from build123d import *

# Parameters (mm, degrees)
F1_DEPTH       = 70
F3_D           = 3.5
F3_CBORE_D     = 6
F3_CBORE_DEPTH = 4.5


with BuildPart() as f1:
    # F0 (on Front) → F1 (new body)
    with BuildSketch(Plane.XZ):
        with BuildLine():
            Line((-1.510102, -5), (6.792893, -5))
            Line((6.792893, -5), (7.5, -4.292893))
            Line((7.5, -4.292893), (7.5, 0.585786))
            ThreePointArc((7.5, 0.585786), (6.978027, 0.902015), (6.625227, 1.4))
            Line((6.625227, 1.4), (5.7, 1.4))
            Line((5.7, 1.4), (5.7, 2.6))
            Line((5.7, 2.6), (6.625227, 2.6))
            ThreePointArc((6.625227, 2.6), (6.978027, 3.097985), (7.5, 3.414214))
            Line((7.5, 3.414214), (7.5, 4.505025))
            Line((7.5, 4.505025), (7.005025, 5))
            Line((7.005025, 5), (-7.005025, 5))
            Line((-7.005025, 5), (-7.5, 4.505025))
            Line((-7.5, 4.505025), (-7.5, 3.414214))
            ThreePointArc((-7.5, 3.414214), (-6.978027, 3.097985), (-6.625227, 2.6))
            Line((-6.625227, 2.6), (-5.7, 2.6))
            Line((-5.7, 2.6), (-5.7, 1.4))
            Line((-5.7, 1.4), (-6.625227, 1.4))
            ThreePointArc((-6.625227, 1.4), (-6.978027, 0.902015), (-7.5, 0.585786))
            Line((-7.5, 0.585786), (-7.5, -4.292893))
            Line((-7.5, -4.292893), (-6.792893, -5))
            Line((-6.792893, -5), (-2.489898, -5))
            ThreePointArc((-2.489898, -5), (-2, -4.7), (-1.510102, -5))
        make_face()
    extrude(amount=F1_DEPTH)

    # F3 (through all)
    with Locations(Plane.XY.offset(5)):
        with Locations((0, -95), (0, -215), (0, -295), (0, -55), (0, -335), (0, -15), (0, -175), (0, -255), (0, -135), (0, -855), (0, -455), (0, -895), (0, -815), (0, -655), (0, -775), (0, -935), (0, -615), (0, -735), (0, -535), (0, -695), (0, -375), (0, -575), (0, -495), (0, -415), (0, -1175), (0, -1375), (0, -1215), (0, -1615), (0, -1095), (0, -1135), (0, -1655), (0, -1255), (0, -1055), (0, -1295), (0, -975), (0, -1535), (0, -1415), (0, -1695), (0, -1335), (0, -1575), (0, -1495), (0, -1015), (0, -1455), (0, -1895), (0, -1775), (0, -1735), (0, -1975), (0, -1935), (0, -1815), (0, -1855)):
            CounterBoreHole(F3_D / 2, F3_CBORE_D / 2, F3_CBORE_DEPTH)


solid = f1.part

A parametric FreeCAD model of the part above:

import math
import FreeCAD as App
import Part
import Sketcher

V = App.Vector

doc = App.newDocument("Part")
body = doc.addObject("PartDesign::Body", "Body")

# Sketch on XZ plane
sketch1 = body.newObject("Sketcher::SketchObject", "Sketch")
sketch1.AttachmentSupport = (doc.getObject("XZ_Plane"), [""])
sketch1.MapMode = "FlatFace"
sketch1.addGeometry(Part.LineSegment(V(-1.5, -5, 0), V(6.8, -5, 0)), False)
sketch1.addGeometry(Part.LineSegment(V(6.8, -5, 0), V(7.5, -4.3, 0)), False)
sketch1.addGeometry(Part.LineSegment(V(7.5, -4.3, 0), V(7.5, 0.6, 0)), False)
sketch1.addGeometry(Part.ArcOfCircle(Part.Circle(V(8, 2, 0), V(0, 0, 1), 1.5), math.radians(-156), math.radians(-109)), False)
sketch1.addGeometry(Part.LineSegment(V(6.6, 1.4, 0), V(5.7, 1.4, 0)), False)
sketch1.addGeometry(Part.LineSegment(V(5.7, 1.4, 0), V(5.7, 2.6, 0)), False)
sketch1.addGeometry(Part.LineSegment(V(5.7, 2.6, 0), V(6.6, 2.6, 0)), False)
sketch1.addGeometry(Part.ArcOfCircle(Part.Circle(V(8, 2, 0), V(0, 0, 1), 1.5), math.radians(109), math.radians(156)), False)
sketch1.addGeometry(Part.LineSegment(V(7.5, 3.4, 0), V(7.5, 4.5, 0)), False)
sketch1.addGeometry(Part.LineSegment(V(7.5, 4.5, 0), V(7, 5, 0)), False)
sketch1.addGeometry(Part.LineSegment(V(7, 5, 0), V(-7, 5, 0)), False)
sketch1.addGeometry(Part.LineSegment(V(-7, 5, 0), V(-7.5, 4.5, 0)), False)
sketch1.addGeometry(Part.LineSegment(V(-7.5, 4.5, 0), V(-7.5, 3.4, 0)), False)
sketch1.addGeometry(Part.ArcOfCircle(Part.Circle(V(-8, 2, 0), V(0, 0, 1), 1.5), math.radians(24), math.radians(71)), False)
sketch1.addGeometry(Part.LineSegment(V(-6.6, 2.6, 0), V(-5.7, 2.6, 0)), False)
sketch1.addGeometry(Part.LineSegment(V(-5.7, 2.6, 0), V(-5.7, 1.4, 0)), False)
sketch1.addGeometry(Part.LineSegment(V(-5.7, 1.4, 0), V(-6.6, 1.4, 0)), False)
sketch1.addGeometry(Part.ArcOfCircle(Part.Circle(V(-8, 2, 0), V(0, 0, 1), 1.5), math.radians(-71), math.radians(-24)), False)
sketch1.addGeometry(Part.LineSegment(V(-7.5, 0.6, 0), V(-7.5, -4.3, 0)), False)
sketch1.addGeometry(Part.LineSegment(V(-7.5, -4.3, 0), V(-6.8, -5, 0)), False)
sketch1.addGeometry(Part.LineSegment(V(-6.8, -5, 0), V(-2.5, -5, 0)), False)
sketch1.addGeometry(Part.ArcOfCircle(Part.Circle(V(-2, -5.3, 0), V(0, 0, 1), 0.6), math.radians(27), math.radians(153)), False)
sketch1.addConstraint(Sketcher.Constraint("Coincident", 0, 2, 1, 1))
sketch1.addConstraint(Sketcher.Constraint("Coincident", 1, 2, 2, 1))
sketch1.addConstraint(Sketcher.Constraint("Coincident", 2, 2, 3, 2))
sketch1.addConstraint(Sketcher.Constraint("Coincident", 3, 1, 4, 1))
sketch1.addConstraint(Sketcher.Constraint("Coincident", 4, 2, 5, 1))
sketch1.addConstraint(Sketcher.Constraint("Coincident", 5, 2, 6, 1))
sketch1.addConstraint(Sketcher.Constraint("Coincident", 6, 2, 7, 2))
sketch1.addConstraint(Sketcher.Constraint("Coincident", 7, 1, 8, 1))
sketch1.addConstraint(Sketcher.Constraint("Coincident", 8, 2, 9, 1))
sketch1.addConstraint(Sketcher.Constraint("Coincident", 9, 2, 10, 1))
sketch1.addConstraint(Sketcher.Constraint("Coincident", 10, 2, 11, 1))
sketch1.addConstraint(Sketcher.Constraint("Coincident", 11, 2, 12, 1))
sketch1.addConstraint(Sketcher.Constraint("Coincident", 12, 2, 13, 2))
sketch1.addConstraint(Sketcher.Constraint("Coincident", 13, 1, 14, 1))
sketch1.addConstraint(Sketcher.Constraint("Coincident", 14, 2, 15, 1))
sketch1.addConstraint(Sketcher.Constraint("Coincident", 15, 2, 16, 1))
sketch1.addConstraint(Sketcher.Constraint("Coincident", 16, 2, 17, 2))
sketch1.addConstraint(Sketcher.Constraint("Coincident", 17, 1, 18, 1))
sketch1.addConstraint(Sketcher.Constraint("Coincident", 18, 2, 19, 1))
sketch1.addConstraint(Sketcher.Constraint("Coincident", 19, 2, 20, 1))
sketch1.addConstraint(Sketcher.Constraint("Coincident", 20, 2, 21, 2))
sketch1.addConstraint(Sketcher.Constraint("Coincident", 21, 1, 0, 1))
sketch1.addConstraint(Sketcher.Constraint("Horizontal", 0))
sketch1.addConstraint(Sketcher.Constraint("Vertical", 2))
sketch1.addConstraint(Sketcher.Constraint("Horizontal", 4))
sketch1.addConstraint(Sketcher.Constraint("Vertical", 5))
sketch1.addConstraint(Sketcher.Constraint("Horizontal", 6))
sketch1.addConstraint(Sketcher.Constraint("Vertical", 8))
sketch1.addConstraint(Sketcher.Constraint("Horizontal", 10))
sketch1.addConstraint(Sketcher.Constraint("Vertical", 12))
sketch1.addConstraint(Sketcher.Constraint("Horizontal", 14))
sketch1.addConstraint(Sketcher.Constraint("Vertical", 15))
sketch1.addConstraint(Sketcher.Constraint("Horizontal", 16))
sketch1.addConstraint(Sketcher.Constraint("Vertical", 18))
sketch1.addConstraint(Sketcher.Constraint("Horizontal", 20))
sketch1.addConstraint(Sketcher.Constraint("Coincident", 7, 3, 3, 3))
sketch1.addConstraint(Sketcher.Constraint("Coincident", 17, 3, 13, 3))
sketch1.addConstraint(Sketcher.Constraint("Equal", 3, 7))
sketch1.addConstraint(Sketcher.Constraint("Equal", 7, 13))
sketch1.addConstraint(Sketcher.Constraint("Equal", 13, 17))
sketch1.addConstraint(Sketcher.Constraint("Symmetric", 3, 3, 13, 3, -2))
sketch1.addConstraint(Sketcher.Constraint("Symmetric", 8, 2, 11, 2, -2))
sketch1.addConstraint(Sketcher.Constraint("Symmetric", 5, 2, 14, 2, -2))
sketch1.addConstraint(Sketcher.Constraint("Symmetric", 1, 2, 18, 2, -2))
sketch1.addConstraint(Sketcher.Constraint("Symmetric", 0, 2, 19, 2, -2))
sketch1.addConstraint(Sketcher.Constraint("Perpendicular", 1, 9))
sketch1.addConstraint(Sketcher.Constraint("Perpendicular", 9, 11))
sketch1.addConstraint(Sketcher.Constraint("Perpendicular", 11, 19))
sketch1.addConstraint(Sketcher.Constraint("Horizontal", 4, 2, 15, 2))
sketch1.addConstraint(Sketcher.Constraint("Vertical", 3, 1, 6, 2))
sketch1.addConstraint(Sketcher.Constraint("Vertical", 2, 2, 7, 1))
sketch1.addConstraint(Sketcher.Constraint("Radius", 21, 0.55))
sketch1.addConstraint(Sketcher.Constraint("Distance", 1, 1.0))
sketch1.addConstraint(Sketcher.Constraint("DistanceY", 5, 1, 5, 2, 1.2))
sketch1.addConstraint(Sketcher.Constraint("DistanceX", 21, 3, -1, 1, 2.0))
sketch1.addConstraint(Sketcher.Constraint("DistanceY", 0, 2, -1, 1, 5.0))
sketch1.addConstraint(Sketcher.Constraint("DistanceY", -1, 1, 9, 2, 5.0))
sketch1.addConstraint(Sketcher.Constraint("Distance", 9, 0.7))
sketch1.addConstraint(Sketcher.Constraint("DistanceX", -1, 1, 1, 2, 7.5))
sketch1.addConstraint(Sketcher.Constraint("DistanceY", -1, 1, 3, 1, 1.4))
sketch1.addConstraint(Sketcher.Constraint("DistanceX", -1, 1, 4, 2, 5.7))
sketch1.addConstraint(Sketcher.Constraint("DistanceY", 21, 3, -1, 1, 5.25))
sketch1.addConstraint(Sketcher.Constraint("Radius", 3, 1.500005))
sketch1.addConstraint(Sketcher.Constraint("DistanceY", 2, 1, 2, 2, 4.878679))
pad1 = body.newObject("PartDesign::Pad", "Pad")
pad1.Profile = sketch1
pad1.Length = 70

# Sketch on XY plane
sketch2 = body.newObject("Sketcher::SketchObject", "Sketch001")
sketch2.AttachmentSupport = (doc.getObject("XY_Plane"), [""])
sketch2.MapMode = "FlatFace"
sketch2.AttachmentOffset = App.Placement(V(0, 0, 5), App.Rotation())
sketch2.addGeometry(Part.Circle(V(0, -95, 0), V(0, 0, 1), 1.8), False)
sketch2.addGeometry(Part.Circle(V(0, -215, 0), V(0, 0, 1), 1.8), False)
sketch2.addGeometry(Part.Circle(V(0, -295, 0), V(0, 0, 1), 1.8), False)
sketch2.addGeometry(Part.Circle(V(0, -55, 0), V(0, 0, 1), 1.8), False)
sketch2.addGeometry(Part.Circle(V(0, -335, 0), V(0, 0, 1), 1.8), False)
sketch2.addGeometry(Part.Circle(V(0, -15, 0), V(0, 0, 1), 1.8), False)
sketch2.addGeometry(Part.Circle(V(0, -175, 0), V(0, 0, 1), 1.8), False)
sketch2.addGeometry(Part.Circle(V(0, -255, 0), V(0, 0, 1), 1.8), False)
sketch2.addGeometry(Part.Circle(V(0, -135, 0), V(0, 0, 1), 1.8), False)
sketch2.addGeometry(Part.Circle(V(0, -855, 0), V(0, 0, 1), 1.8), False)
sketch2.addGeometry(Part.Circle(V(0, -455, 0), V(0, 0, 1), 1.8), False)
sketch2.addGeometry(Part.Circle(V(0, -895, 0), V(0, 0, 1), 1.8), False)
sketch2.addGeometry(Part.Circle(V(0, -815, 0), V(0, 0, 1), 1.8), False)
sketch2.addGeometry(Part.Circle(V(0, -655, 0), V(0, 0, 1), 1.8), False)
sketch2.addGeometry(Part.Circle(V(0, -775, 0), V(0, 0, 1), 1.8), False)
sketch2.addGeometry(Part.Circle(V(0, -935, 0), V(0, 0, 1), 1.8), False)
sketch2.addGeometry(Part.Circle(V(0, -615, 0), V(0, 0, 1), 1.8), False)
sketch2.addGeometry(Part.Circle(V(0, -735, 0), V(0, 0, 1), 1.8), False)
sketch2.addGeometry(Part.Circle(V(0, -535, 0), V(0, 0, 1), 1.8), False)
sketch2.addGeometry(Part.Circle(V(0, -695, 0), V(0, 0, 1), 1.8), False)
sketch2.addGeometry(Part.Circle(V(0, -375, 0), V(0, 0, 1), 1.8), False)
sketch2.addGeometry(Part.Circle(V(0, -575, 0), V(0, 0, 1), 1.8), False)
sketch2.addGeometry(Part.Circle(V(0, -495, 0), V(0, 0, 1), 1.8), False)
sketch2.addGeometry(Part.Circle(V(0, -415, 0), V(0, 0, 1), 1.8), False)
sketch2.addGeometry(Part.Circle(V(0, -1175, 0), V(0, 0, 1), 1.8), False)
sketch2.addGeometry(Part.Circle(V(0, -1375, 0), V(0, 0, 1), 1.8), False)
sketch2.addGeometry(Part.Circle(V(0, -1215, 0), V(0, 0, 1), 1.8), False)
sketch2.addGeometry(Part.Circle(V(0, -1615, 0), V(0, 0, 1), 1.8), False)
sketch2.addGeometry(Part.Circle(V(0, -1095, 0), V(0, 0, 1), 1.8), False)
sketch2.addGeometry(Part.Circle(V(0, -1135, 0), V(0, 0, 1), 1.8), False)
sketch2.addGeometry(Part.Circle(V(0, -1655, 0), V(0, 0, 1), 1.8), False)
sketch2.addGeometry(Part.Circle(V(0, -1255, 0), V(0, 0, 1), 1.8), False)
sketch2.addGeometry(Part.Circle(V(0, -1055, 0), V(0, 0, 1), 1.8), False)
sketch2.addGeometry(Part.Circle(V(0, -1295, 0), V(0, 0, 1), 1.8), False)
sketch2.addGeometry(Part.Circle(V(0, -975, 0), V(0, 0, 1), 1.8), False)
sketch2.addGeometry(Part.Circle(V(0, -1535, 0), V(0, 0, 1), 1.8), False)
sketch2.addGeometry(Part.Circle(V(0, -1415, 0), V(0, 0, 1), 1.8), False)
sketch2.addGeometry(Part.Circle(V(0, -1695, 0), V(0, 0, 1), 1.8), False)
sketch2.addGeometry(Part.Circle(V(0, -1335, 0), V(0, 0, 1), 1.8), False)
sketch2.addGeometry(Part.Circle(V(0, -1575, 0), V(0, 0, 1), 1.8), False)
sketch2.addGeometry(Part.Circle(V(0, -1495, 0), V(0, 0, 1), 1.8), False)
sketch2.addGeometry(Part.Circle(V(0, -1015, 0), V(0, 0, 1), 1.8), False)
sketch2.addGeometry(Part.Circle(V(0, -1455, 0), V(0, 0, 1), 1.8), False)
sketch2.addGeometry(Part.Circle(V(0, -1895, 0), V(0, 0, 1), 1.8), False)
sketch2.addGeometry(Part.Circle(V(0, -1775, 0), V(0, 0, 1), 1.8), False)
sketch2.addGeometry(Part.Circle(V(0, -1735, 0), V(0, 0, 1), 1.8), False)
sketch2.addGeometry(Part.Circle(V(0, -1975, 0), V(0, 0, 1), 1.8), False)
sketch2.addGeometry(Part.Circle(V(0, -1935, 0), V(0, 0, 1), 1.8), False)
sketch2.addGeometry(Part.Circle(V(0, -1815, 0), V(0, 0, 1), 1.8), False)
sketch2.addGeometry(Part.Circle(V(0, -1855, 0), V(0, 0, 1), 1.8), False)
sketch2.addConstraint(Sketcher.Constraint("Equal", 0, 1))
sketch2.addConstraint(Sketcher.Constraint("Equal", 1, 2))
sketch2.addConstraint(Sketcher.Constraint("Equal", 2, 3))
sketch2.addConstraint(Sketcher.Constraint("Equal", 3, 4))
sketch2.addConstraint(Sketcher.Constraint("Equal", 4, 5))
sketch2.addConstraint(Sketcher.Constraint("Equal", 5, 6))
sketch2.addConstraint(Sketcher.Constraint("Equal", 6, 7))
sketch2.addConstraint(Sketcher.Constraint("Equal", 7, 8))
sketch2.addConstraint(Sketcher.Constraint("Equal", 8, 9))
sketch2.addConstraint(Sketcher.Constraint("Equal", 9, 10))
sketch2.addConstraint(Sketcher.Constraint("Equal", 10, 11))
sketch2.addConstraint(Sketcher.Constraint("Equal", 11, 12))
sketch2.addConstraint(Sketcher.Constraint("Equal", 12, 13))
sketch2.addConstraint(Sketcher.Constraint("Equal", 13, 14))
sketch2.addConstraint(Sketcher.Constraint("Equal", 14, 15))
sketch2.addConstraint(Sketcher.Constraint("Equal", 15, 16))
sketch2.addConstraint(Sketcher.Constraint("Equal", 16, 17))
sketch2.addConstraint(Sketcher.Constraint("Equal", 17, 18))
sketch2.addConstraint(Sketcher.Constraint("Equal", 18, 19))
sketch2.addConstraint(Sketcher.Constraint("Equal", 19, 20))
sketch2.addConstraint(Sketcher.Constraint("Equal", 20, 21))
sketch2.addConstraint(Sketcher.Constraint("Equal", 21, 22))
sketch2.addConstraint(Sketcher.Constraint("Equal", 22, 23))
sketch2.addConstraint(Sketcher.Constraint("Equal", 23, 24))
sketch2.addConstraint(Sketcher.Constraint("Equal", 24, 25))
sketch2.addConstraint(Sketcher.Constraint("Equal", 25, 26))
sketch2.addConstraint(Sketcher.Constraint("Equal", 26, 27))
sketch2.addConstraint(Sketcher.Constraint("Equal", 27, 28))
sketch2.addConstraint(Sketcher.Constraint("Equal", 28, 29))
sketch2.addConstraint(Sketcher.Constraint("Equal", 29, 30))
sketch2.addConstraint(Sketcher.Constraint("Equal", 30, 31))
sketch2.addConstraint(Sketcher.Constraint("Equal", 31, 32))
sketch2.addConstraint(Sketcher.Constraint("Equal", 32, 33))
sketch2.addConstraint(Sketcher.Constraint("Equal", 33, 34))
sketch2.addConstraint(Sketcher.Constraint("Equal", 34, 35))
sketch2.addConstraint(Sketcher.Constraint("Equal", 35, 36))
sketch2.addConstraint(Sketcher.Constraint("Equal", 36, 37))
sketch2.addConstraint(Sketcher.Constraint("Equal", 37, 38))
sketch2.addConstraint(Sketcher.Constraint("Equal", 38, 39))
sketch2.addConstraint(Sketcher.Constraint("Equal", 39, 40))
sketch2.addConstraint(Sketcher.Constraint("Equal", 40, 41))
sketch2.addConstraint(Sketcher.Constraint("Equal", 41, 42))
sketch2.addConstraint(Sketcher.Constraint("Equal", 42, 43))
sketch2.addConstraint(Sketcher.Constraint("Equal", 43, 44))
sketch2.addConstraint(Sketcher.Constraint("Equal", 44, 45))
sketch2.addConstraint(Sketcher.Constraint("Equal", 45, 46))
sketch2.addConstraint(Sketcher.Constraint("Equal", 46, 47))
sketch2.addConstraint(Sketcher.Constraint("Equal", 47, 48))
sketch2.addConstraint(Sketcher.Constraint("Equal", 48, 49))
sketch2.addConstraint(Sketcher.Constraint("PointOnObject", 0, 3, -2))
sketch2.addConstraint(Sketcher.Constraint("PointOnObject", 1, 3, -2))
sketch2.addConstraint(Sketcher.Constraint("PointOnObject", 2, 3, -2))
sketch2.addConstraint(Sketcher.Constraint("PointOnObject", 3, 3, -2))
sketch2.addConstraint(Sketcher.Constraint("PointOnObject", 4, 3, -2))
sketch2.addConstraint(Sketcher.Constraint("PointOnObject", 5, 3, -2))
sketch2.addConstraint(Sketcher.Constraint("PointOnObject", 6, 3, -2))
sketch2.addConstraint(Sketcher.Constraint("PointOnObject", 7, 3, -2))
sketch2.addConstraint(Sketcher.Constraint("PointOnObject", 8, 3, -2))
sketch2.addConstraint(Sketcher.Constraint("PointOnObject", 9, 3, -2))
sketch2.addConstraint(Sketcher.Constraint("PointOnObject", 10, 3, -2))
sketch2.addConstraint(Sketcher.Constraint("PointOnObject", 11, 3, -2))
sketch2.addConstraint(Sketcher.Constraint("PointOnObject", 12, 3, -2))
sketch2.addConstraint(Sketcher.Constraint("PointOnObject", 13, 3, -2))
sketch2.addConstraint(Sketcher.Constraint("PointOnObject", 14, 3, -2))
sketch2.addConstraint(Sketcher.Constraint("PointOnObject", 15, 3, -2))
sketch2.addConstraint(Sketcher.Constraint("PointOnObject", 16, 3, -2))
sketch2.addConstraint(Sketcher.Constraint("PointOnObject", 17, 3, -2))
sketch2.addConstraint(Sketcher.Constraint("PointOnObject", 18, 3, -2))
sketch2.addConstraint(Sketcher.Constraint("PointOnObject", 19, 3, -2))
sketch2.addConstraint(Sketcher.Constraint("PointOnObject", 20, 3, -2))
sketch2.addConstraint(Sketcher.Constraint("PointOnObject", 21, 3, -2))
sketch2.addConstraint(Sketcher.Constraint("PointOnObject", 22, 3, -2))
sketch2.addConstraint(Sketcher.Constraint("PointOnObject", 23, 3, -2))
sketch2.addConstraint(Sketcher.Constraint("PointOnObject", 24, 3, -2))
sketch2.addConstraint(Sketcher.Constraint("PointOnObject", 25, 3, -2))
sketch2.addConstraint(Sketcher.Constraint("PointOnObject", 26, 3, -2))
sketch2.addConstraint(Sketcher.Constraint("PointOnObject", 27, 3, -2))
sketch2.addConstraint(Sketcher.Constraint("PointOnObject", 28, 3, -2))
sketch2.addConstraint(Sketcher.Constraint("PointOnObject", 29, 3, -2))
sketch2.addConstraint(Sketcher.Constraint("PointOnObject", 30, 3, -2))
sketch2.addConstraint(Sketcher.Constraint("PointOnObject", 31, 3, -2))
sketch2.addConstraint(Sketcher.Constraint("PointOnObject", 32, 3, -2))
sketch2.addConstraint(Sketcher.Constraint("PointOnObject", 33, 3, -2))
sketch2.addConstraint(Sketcher.Constraint("PointOnObject", 34, 3, -2))
sketch2.addConstraint(Sketcher.Constraint("PointOnObject", 35, 3, -2))
sketch2.addConstraint(Sketcher.Constraint("PointOnObject", 36, 3, -2))
sketch2.addConstraint(Sketcher.Constraint("PointOnObject", 37, 3, -2))
sketch2.addConstraint(Sketcher.Constraint("PointOnObject", 38, 3, -2))
sketch2.addConstraint(Sketcher.Constraint("PointOnObject", 39, 3, -2))
sketch2.addConstraint(Sketcher.Constraint("PointOnObject", 40, 3, -2))
sketch2.addConstraint(Sketcher.Constraint("PointOnObject", 41, 3, -2))
sketch2.addConstraint(Sketcher.Constraint("PointOnObject", 42, 3, -2))
sketch2.addConstraint(Sketcher.Constraint("PointOnObject", 43, 3, -2))
sketch2.addConstraint(Sketcher.Constraint("PointOnObject", 44, 3, -2))
sketch2.addConstraint(Sketcher.Constraint("PointOnObject", 45, 3, -2))
sketch2.addConstraint(Sketcher.Constraint("PointOnObject", 46, 3, -2))
sketch2.addConstraint(Sketcher.Constraint("PointOnObject", 47, 3, -2))
sketch2.addConstraint(Sketcher.Constraint("PointOnObject", 48, 3, -2))
sketch2.addConstraint(Sketcher.Constraint("PointOnObject", 49, 3, -2))
sketch2.addConstraint(Sketcher.Constraint("Diameter", 0, 3.5))
sketch2.addConstraint(Sketcher.Constraint("DistanceY", 0, 3, -1, 1, 95.0))
sketch2.addConstraint(Sketcher.Constraint("DistanceY", 1, 3, -1, 1, 215.0))
sketch2.addConstraint(Sketcher.Constraint("DistanceY", 2, 3, -1, 1, 295.0))
sketch2.addConstraint(Sketcher.Constraint("DistanceY", 3, 3, -1, 1, 55.0))
sketch2.addConstraint(Sketcher.Constraint("DistanceY", 4, 3, -1, 1, 335.0))
sketch2.addConstraint(Sketcher.Constraint("DistanceY", 5, 3, -1, 1, 15.0))
sketch2.addConstraint(Sketcher.Constraint("DistanceY", 6, 3, -1, 1, 175.0))
sketch2.addConstraint(Sketcher.Constraint("DistanceY", 7, 3, -1, 1, 255.0))
sketch2.addConstraint(Sketcher.Constraint("DistanceY", 8, 3, -1, 1, 135.0))
sketch2.addConstraint(Sketcher.Constraint("DistanceY", 9, 3, -1, 1, 855.0))
sketch2.addConstraint(Sketcher.Constraint("DistanceY", 10, 3, -1, 1, 455.0))
sketch2.addConstraint(Sketcher.Constraint("DistanceY", 11, 3, -1, 1, 895.0))
sketch2.addConstraint(Sketcher.Constraint("DistanceY", 12, 3, -1, 1, 815.0))
sketch2.addConstraint(Sketcher.Constraint("DistanceY", 13, 3, -1, 1, 655.0))
sketch2.addConstraint(Sketcher.Constraint("DistanceY", 14, 3, -1, 1, 775.0))
sketch2.addConstraint(Sketcher.Constraint("DistanceY", 15, 3, -1, 1, 935.0))
sketch2.addConstraint(Sketcher.Constraint("DistanceY", 16, 3, -1, 1, 615.0))
sketch2.addConstraint(Sketcher.Constraint("DistanceY", 17, 3, -1, 1, 735.0))
sketch2.addConstraint(Sketcher.Constraint("DistanceY", 18, 3, -1, 1, 535.0))
sketch2.addConstraint(Sketcher.Constraint("DistanceY", 19, 3, -1, 1, 695.0))
sketch2.addConstraint(Sketcher.Constraint("DistanceY", 20, 3, -1, 1, 375.0))
sketch2.addConstraint(Sketcher.Constraint("DistanceY", 21, 3, -1, 1, 575.0))
sketch2.addConstraint(Sketcher.Constraint("DistanceY", 22, 3, -1, 1, 495.0))
sketch2.addConstraint(Sketcher.Constraint("DistanceY", 23, 3, -1, 1, 415.0))
sketch2.addConstraint(Sketcher.Constraint("DistanceY", 24, 3, -1, 1, 1175.0))
sketch2.addConstraint(Sketcher.Constraint("DistanceY", 25, 3, -1, 1, 1375.0))
sketch2.addConstraint(Sketcher.Constraint("DistanceY", 26, 3, -1, 1, 1215.0))
sketch2.addConstraint(Sketcher.Constraint("DistanceY", 27, 3, -1, 1, 1615.0))
sketch2.addConstraint(Sketcher.Constraint("DistanceY", 28, 3, -1, 1, 1095.0))
sketch2.addConstraint(Sketcher.Constraint("DistanceY", 29, 3, -1, 1, 1135.0))
sketch2.addConstraint(Sketcher.Constraint("DistanceY", 30, 3, -1, 1, 1655.0))
sketch2.addConstraint(Sketcher.Constraint("DistanceY", 31, 3, -1, 1, 1255.0))
sketch2.addConstraint(Sketcher.Constraint("DistanceY", 32, 3, -1, 1, 1055.0))
sketch2.addConstraint(Sketcher.Constraint("DistanceY", 33, 3, -1, 1, 1295.0))
sketch2.addConstraint(Sketcher.Constraint("DistanceY", 34, 3, -1, 1, 975.0))
sketch2.addConstraint(Sketcher.Constraint("DistanceY", 35, 3, -1, 1, 1535.0))
sketch2.addConstraint(Sketcher.Constraint("DistanceY", 36, 3, -1, 1, 1415.0))
sketch2.addConstraint(Sketcher.Constraint("DistanceY", 37, 3, -1, 1, 1695.0))
sketch2.addConstraint(Sketcher.Constraint("DistanceY", 38, 3, -1, 1, 1335.0))
sketch2.addConstraint(Sketcher.Constraint("DistanceY", 39, 3, -1, 1, 1575.0))
sketch2.addConstraint(Sketcher.Constraint("DistanceY", 40, 3, -1, 1, 1495.0))
sketch2.addConstraint(Sketcher.Constraint("DistanceY", 41, 3, -1, 1, 1015.0))
sketch2.addConstraint(Sketcher.Constraint("DistanceY", 42, 3, -1, 1, 1455.0))
sketch2.addConstraint(Sketcher.Constraint("DistanceY", 43, 3, -1, 1, 1895.0))
sketch2.addConstraint(Sketcher.Constraint("DistanceY", 44, 3, -1, 1, 1775.0))
sketch2.addConstraint(Sketcher.Constraint("DistanceY", 45, 3, -1, 1, 1735.0))
sketch2.addConstraint(Sketcher.Constraint("DistanceY", 46, 3, -1, 1, 1975.0))
sketch2.addConstraint(Sketcher.Constraint("DistanceY", 47, 3, -1, 1, 1935.0))
sketch2.addConstraint(Sketcher.Constraint("DistanceY", 48, 3, -1, 1, 1815.0))
sketch2.addConstraint(Sketcher.Constraint("DistanceY", 49, 3, -1, 1, 1855.0))
doc.recompute()
hole = body.newObject("PartDesign::Hole", "Hole")
hole.Profile = sketch2
hole.ThreadType = "None"
hole.Diameter = 3.5
hole.DepthType = "ThroughAll"
hole.HoleCutType = "Counterbore"
hole.HoleCutDiameter = 6
hole.HoleCutDepth = 4.5

doc.recompute()
